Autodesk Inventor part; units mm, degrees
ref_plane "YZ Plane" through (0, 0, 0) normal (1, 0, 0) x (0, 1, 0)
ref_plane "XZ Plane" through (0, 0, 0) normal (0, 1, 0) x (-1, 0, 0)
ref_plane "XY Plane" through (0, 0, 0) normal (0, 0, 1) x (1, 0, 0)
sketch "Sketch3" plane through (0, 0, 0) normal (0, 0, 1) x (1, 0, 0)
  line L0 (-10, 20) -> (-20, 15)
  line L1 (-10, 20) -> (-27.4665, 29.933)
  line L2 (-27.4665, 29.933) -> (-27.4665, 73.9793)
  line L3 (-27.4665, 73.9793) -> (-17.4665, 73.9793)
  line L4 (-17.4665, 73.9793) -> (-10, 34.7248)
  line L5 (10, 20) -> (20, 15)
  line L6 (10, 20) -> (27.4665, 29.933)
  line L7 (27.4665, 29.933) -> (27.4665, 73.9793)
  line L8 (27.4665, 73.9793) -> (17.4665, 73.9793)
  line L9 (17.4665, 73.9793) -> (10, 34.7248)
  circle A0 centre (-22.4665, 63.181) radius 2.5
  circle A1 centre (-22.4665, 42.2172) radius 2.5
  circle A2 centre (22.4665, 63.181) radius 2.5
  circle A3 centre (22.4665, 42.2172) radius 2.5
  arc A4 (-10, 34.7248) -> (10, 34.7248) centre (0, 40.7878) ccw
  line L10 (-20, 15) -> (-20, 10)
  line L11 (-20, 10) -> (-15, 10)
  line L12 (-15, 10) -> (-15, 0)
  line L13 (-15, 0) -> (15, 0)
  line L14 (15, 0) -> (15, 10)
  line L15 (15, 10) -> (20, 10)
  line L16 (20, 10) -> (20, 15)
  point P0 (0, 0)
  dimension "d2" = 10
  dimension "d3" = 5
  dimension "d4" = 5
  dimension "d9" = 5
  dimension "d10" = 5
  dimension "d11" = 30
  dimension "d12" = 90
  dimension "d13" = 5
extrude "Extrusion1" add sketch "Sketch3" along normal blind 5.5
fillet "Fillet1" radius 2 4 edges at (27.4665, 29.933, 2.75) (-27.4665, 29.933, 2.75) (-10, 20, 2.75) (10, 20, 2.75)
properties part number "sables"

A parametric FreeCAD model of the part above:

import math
import FreeCAD as App
import Part
import Sketcher
from FreeCAD import Vector
Q = App.Units.Quantity


def edges_at(feature, points):
    """Names of the edges that pass closest to the given points."""
    edges = feature.Shape.Edges
    near = lambda p: min(range(len(edges)), key=lambda i: edges[i].distToShape(Part.Vertex(*p))[0])
    return sorted({f"Edge{near(p) + 1}" for p in points})

doc = App.newDocument("Part")
body = doc.addObject("PartDesign::Body", "Body")

# Sketch on XY plane
sketch1 = body.newObject("Sketcher::SketchObject", "Sketch")
sketch1.AttachmentSupport = (doc.getObject("XY_Plane"), [""])
sketch1.MapMode = "FlatFace"
sketch1.addGeometry([
    Part.LineSegment(Vector(-27.5, 29.9, 0), Vector(-10, 20, 0)),  # 0
    Part.LineSegment(Vector(-10, 20, 0), Vector(-20, 15, 0)),  # 1
    Part.LineSegment(Vector(-20, 15, 0), Vector(-20, 10, 0)),  # 2
    Part.LineSegment(Vector(-20, 10, 0), Vector(-15, 10, 0)),  # 3
    Part.LineSegment(Vector(-15, 10, 0), Vector(-15, 0, 0)),  # 4
    Part.LineSegment(Vector(-15, 0, 0), Vector(15, 0, 0)),  # 5
    Part.LineSegment(Vector(15, 0, 0), Vector(15, 10, 0)),  # 6
    Part.LineSegment(Vector(15, 10, 0), Vector(20, 10, 0)),  # 7
    Part.LineSegment(Vector(20, 10, 0), Vector(20, 15, 0)),  # 8
    Part.LineSegment(Vector(20, 15, 0), Vector(10, 20, 0)),  # 9
    Part.LineSegment(Vector(10, 20, 0), Vector(27.5, 29.9, 0)),  # 10
    Part.LineSegment(Vector(27.5, 29.9, 0), Vector(27.5, 74, 0)),  # 11
    Part.LineSegment(Vector(27.5, 74, 0), Vector(17.5, 74, 0)),  # 12
    Part.LineSegment(Vector(17.5, 74, 0), Vector(10, 34.7, 0)),  # 13
    Part.ArcOfCircle(Part.Circle(Vector(0, 40.8, 0), Vector(0, 0, 1), 11.7), math.radians(-149), math.radians(-31)),  # 14
    Part.LineSegment(Vector(-10, 34.7, 0), Vector(-17.5, 74, 0)),  # 15
    Part.LineSegment(Vector(-17.5, 74, 0), Vector(-27.5, 74, 0)),  # 16
    Part.LineSegment(Vector(-27.5, 74, 0), Vector(-27.5, 29.9, 0)),  # 17
    Part.Circle(Vector(-22.5, 42.2, 0), Vector(0, 0, 1), 2.5),  # 18
    Part.Circle(Vector(-22.5, 63.2, 0), Vector(0, 0, 1), 2.5),  # 19
    Part.Circle(Vector(22.5, 42.2, 0), Vector(0, 0, 1), 2.5),  # 20
    Part.Circle(Vector(22.5, 63.2, 0), Vector(0, 0, 1), 2.5),  # 21
], False)
sketch1.addConstraint([
    Sketcher.Constraint("Coincident", 0, 2, 1, 1),
    Sketcher.Constraint("Coincident", 1, 2, 2, 1),
    Sketcher.Constraint("Coincident", 2, 2, 3, 1),
    Sketcher.Constraint("Coincident", 3, 2, 4, 1),
    Sketcher.Constraint("Coincident", 4, 2, 5, 1),
    Sketcher.Constraint("Coincident", 5, 2, 6, 1),
    Sketcher.Constraint("Coincident", 6, 2, 7, 1),
    Sketcher.Constraint("Coincident", 7, 2, 8, 1),
    Sketcher.Constraint("Coincident", 8, 2, 9, 1),
    Sketcher.Constraint("Coincident", 9, 2, 10, 1),
    Sketcher.Constraint("Coincident", 10, 2, 11, 1),
    Sketcher.Constraint("Coincident", 11, 2, 12, 1),
    Sketcher.Constraint("Coincident", 12, 2, 13, 1),
    Sketcher.Constraint("Coincident", 13, 2, 14, 2),
    Sketcher.Constraint("Coincident", 14, 1, 15, 1),
    Sketcher.Constraint("Coincident", 15, 2, 16, 1),
    Sketcher.Constraint("Coincident", 16, 2, 17, 1),
    Sketcher.Constraint("Coincident", 17, 2, 0, 1),
    Sketcher.Constraint("Vertical", 2),
    Sketcher.Constraint("Horizontal", 3),
    Sketcher.Constraint("Vertical", 4),
    Sketcher.Constraint("Horizontal", 5),
    Sketcher.Constraint("Vertical", 6),
    Sketcher.Constraint("Horizontal", 7),
    Sketcher.Constraint("Vertical", 8),
    Sketcher.Constraint("Vertical", 11),
    Sketcher.Constraint("Horizontal", 12),
    Sketcher.Constraint("Horizontal", 16),
    Sketcher.Constraint("Vertical", 17),
    Sketcher.Constraint("Equal", 18, 19),
    Sketcher.Constraint("Equal", 19, 20),
    Sketcher.Constraint("Equal", 20, 21),
    Sketcher.Constraint("Symmetric", 4, 2, 5, 2, -1, 1),
    Sketcher.Constraint("Symmetric", 18, 3, 20, 3, -2),
    Sketcher.Constraint("Symmetric", 19, 3, 21, 3, -2),
    Sketcher.Constraint("Symmetric", 2, 2, 7, 2, -2),
    Sketcher.Constraint("Symmetric", 0, 2, 9, 2, -2),
    Sketcher.Constraint("Symmetric", 13, 2, 14, 1, -2),
    Sketcher.Constraint("Symmetric", 12, 2, 15, 2, -2),
    Sketcher.Constraint("Symmetric", 10, 2, 17, 2, -2),
    Sketcher.Constraint("Horizontal", 1, 2, 8, 2),
    Sketcher.Constraint("Vertical", 18, 3, 19, 3),
    Sketcher.Constraint("Vertical", 9, 2, 13, 2),
    Sketcher.Constraint("Equal", 7, 2),
    Sketcher.Constraint("Equal", 16, 4),
    Sketcher.Constraint("Diameter", 18, Q("5 mm")),
    Sketcher.Constraint("DistanceX", 3, 1, 3, 2, Q("5 mm")),
    Sketcher.Constraint("DistanceX", 5, 1, 5, 2, Q("30 mm")),
    Sketcher.Constraint("DistanceX", 12, 2, 12, 1, Q("10 mm")),
    Sketcher.Constraint("DistanceX", 0, 2, -1, 1, Q("10 mm")),
    Sketcher.Constraint("DistanceY", 1, 2, 0, 2, Q("5 mm")),
    Sketcher.Constraint("DistanceX", 20, 3, 10, 2, Q("5 mm")),
    Sketcher.Constraint("Angle", 13, Q("-100.7694 deg")),
    Sketcher.Constraint("Radius", 14, Q("11.6944 mm")),
    Sketcher.Constraint("DistanceY", 11, 1, 11, 2, Q("44.0463 mm")),
    Sketcher.Constraint("DistanceY", -1, 1, 19, 3, Q("63.181 mm")),
    Sketcher.Constraint("DistanceY", -1, 1, 10, 2, Q("29.933 mm")),
    Sketcher.Constraint("DistanceX", 18, 3, 20, 3, Q("44.933 mm")),
    Sketcher.Constraint("DistanceY", 20, 3, 11, 2, Q("31.762 mm")),
])
pad1 = body.newObject("PartDesign::Pad", "Pad")
pad1.Profile = sketch1
pad1.Length = 5.5
doc.recompute()

fillet = body.newObject("PartDesign::Fillet", "Fillet")
fillet.Base = (pad1, edges_at(pad1, [
    (27.466, 29.933, 2.75),
    (-27.466, 29.933, 2.75),
    (-10, 20, 2.75),
    (10, 20, 2.75),
]))
fillet.Radius = 2

doc.recompute()
